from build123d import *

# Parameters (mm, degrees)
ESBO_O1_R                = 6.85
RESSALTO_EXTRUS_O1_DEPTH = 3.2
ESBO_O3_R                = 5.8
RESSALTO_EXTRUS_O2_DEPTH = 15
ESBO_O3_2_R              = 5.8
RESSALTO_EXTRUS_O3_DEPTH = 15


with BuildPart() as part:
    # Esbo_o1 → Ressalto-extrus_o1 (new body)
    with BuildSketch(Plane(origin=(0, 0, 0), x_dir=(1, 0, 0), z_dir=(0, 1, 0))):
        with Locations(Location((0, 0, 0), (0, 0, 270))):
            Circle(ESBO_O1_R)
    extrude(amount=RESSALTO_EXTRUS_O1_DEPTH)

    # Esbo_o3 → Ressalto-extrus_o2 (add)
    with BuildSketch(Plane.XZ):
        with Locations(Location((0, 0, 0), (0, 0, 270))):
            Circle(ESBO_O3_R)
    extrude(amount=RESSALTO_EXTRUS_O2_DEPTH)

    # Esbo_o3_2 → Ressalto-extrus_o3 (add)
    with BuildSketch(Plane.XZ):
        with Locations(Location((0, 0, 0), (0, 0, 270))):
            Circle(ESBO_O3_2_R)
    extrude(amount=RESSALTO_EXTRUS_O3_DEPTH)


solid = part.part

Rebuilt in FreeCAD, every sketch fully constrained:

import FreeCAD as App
import Part
import Sketcher

V = App.Vector

doc = App.newDocument("Part")
body = doc.addObject("PartDesign::Body", "Body")

# Sketch on XZ plane
sketch1 = body.newObject("Sketcher::SketchObject", "Sketch")
sketch1.AttachmentSupport = (doc.getObject("XZ_Plane"), [""])
sketch1.MapMode = "FlatFace"
sketch1.addGeometry(Part.Circle(V(0, 0, 0), V(0, 0, 1), 6.85), False)
sketch1.addConstraint(Sketcher.Constraint("Coincident", 0, 3, -1, 1))
sketch1.addConstraint(Sketcher.Constraint("Diameter", 0, 13.7))
pad1 = body.newObject("PartDesign::Pad", "Pad")
pad1.Profile = sketch1
pad1.Length = 3.2
pad1.Reversed = True

# Sketch on XZ plane
sketch2 = body.newObject("Sketcher::SketchObject", "Sketch001")
sketch2.AttachmentSupport = (doc.getObject("XZ_Plane"), [""])
sketch2.MapMode = "FlatFace"
sketch2.addGeometry(Part.Circle(V(0, 0, 0), V(0, 0, 1), 5.8), False)
sketch2.addConstraint(Sketcher.Constraint("Coincident", 0, 3, -1, 1))
sketch2.addConstraint(Sketcher.Constraint("Diameter", 0, 11.6))
pad2 = body.newObject("PartDesign::Pad", "Pad001")
pad2.Profile = sketch2
pad2.Length = 15

# Sketch on XZ plane
sketch3 = body.newObject("Sketcher::SketchObject", "Sketch002")
sketch3.AttachmentSupport = (doc.getObject("XZ_Plane"), [""])
sketch3.MapMode = "FlatFace"
sketch3.addGeometry(Part.Circle(V(0, 0, 0), V(0, 0, 1), 5.8), False)
sketch3.addConstraint(Sketcher.Constraint("Coincident", 0, 3, -1, 1))
sketch3.addConstraint(Sketcher.Constraint("Diameter", 0, 11.6))
pad3 = body.newObject("PartDesign::Pad", "Pad002")
pad3.Profile = sketch3
pad3.Length = 15

doc.recompute()
